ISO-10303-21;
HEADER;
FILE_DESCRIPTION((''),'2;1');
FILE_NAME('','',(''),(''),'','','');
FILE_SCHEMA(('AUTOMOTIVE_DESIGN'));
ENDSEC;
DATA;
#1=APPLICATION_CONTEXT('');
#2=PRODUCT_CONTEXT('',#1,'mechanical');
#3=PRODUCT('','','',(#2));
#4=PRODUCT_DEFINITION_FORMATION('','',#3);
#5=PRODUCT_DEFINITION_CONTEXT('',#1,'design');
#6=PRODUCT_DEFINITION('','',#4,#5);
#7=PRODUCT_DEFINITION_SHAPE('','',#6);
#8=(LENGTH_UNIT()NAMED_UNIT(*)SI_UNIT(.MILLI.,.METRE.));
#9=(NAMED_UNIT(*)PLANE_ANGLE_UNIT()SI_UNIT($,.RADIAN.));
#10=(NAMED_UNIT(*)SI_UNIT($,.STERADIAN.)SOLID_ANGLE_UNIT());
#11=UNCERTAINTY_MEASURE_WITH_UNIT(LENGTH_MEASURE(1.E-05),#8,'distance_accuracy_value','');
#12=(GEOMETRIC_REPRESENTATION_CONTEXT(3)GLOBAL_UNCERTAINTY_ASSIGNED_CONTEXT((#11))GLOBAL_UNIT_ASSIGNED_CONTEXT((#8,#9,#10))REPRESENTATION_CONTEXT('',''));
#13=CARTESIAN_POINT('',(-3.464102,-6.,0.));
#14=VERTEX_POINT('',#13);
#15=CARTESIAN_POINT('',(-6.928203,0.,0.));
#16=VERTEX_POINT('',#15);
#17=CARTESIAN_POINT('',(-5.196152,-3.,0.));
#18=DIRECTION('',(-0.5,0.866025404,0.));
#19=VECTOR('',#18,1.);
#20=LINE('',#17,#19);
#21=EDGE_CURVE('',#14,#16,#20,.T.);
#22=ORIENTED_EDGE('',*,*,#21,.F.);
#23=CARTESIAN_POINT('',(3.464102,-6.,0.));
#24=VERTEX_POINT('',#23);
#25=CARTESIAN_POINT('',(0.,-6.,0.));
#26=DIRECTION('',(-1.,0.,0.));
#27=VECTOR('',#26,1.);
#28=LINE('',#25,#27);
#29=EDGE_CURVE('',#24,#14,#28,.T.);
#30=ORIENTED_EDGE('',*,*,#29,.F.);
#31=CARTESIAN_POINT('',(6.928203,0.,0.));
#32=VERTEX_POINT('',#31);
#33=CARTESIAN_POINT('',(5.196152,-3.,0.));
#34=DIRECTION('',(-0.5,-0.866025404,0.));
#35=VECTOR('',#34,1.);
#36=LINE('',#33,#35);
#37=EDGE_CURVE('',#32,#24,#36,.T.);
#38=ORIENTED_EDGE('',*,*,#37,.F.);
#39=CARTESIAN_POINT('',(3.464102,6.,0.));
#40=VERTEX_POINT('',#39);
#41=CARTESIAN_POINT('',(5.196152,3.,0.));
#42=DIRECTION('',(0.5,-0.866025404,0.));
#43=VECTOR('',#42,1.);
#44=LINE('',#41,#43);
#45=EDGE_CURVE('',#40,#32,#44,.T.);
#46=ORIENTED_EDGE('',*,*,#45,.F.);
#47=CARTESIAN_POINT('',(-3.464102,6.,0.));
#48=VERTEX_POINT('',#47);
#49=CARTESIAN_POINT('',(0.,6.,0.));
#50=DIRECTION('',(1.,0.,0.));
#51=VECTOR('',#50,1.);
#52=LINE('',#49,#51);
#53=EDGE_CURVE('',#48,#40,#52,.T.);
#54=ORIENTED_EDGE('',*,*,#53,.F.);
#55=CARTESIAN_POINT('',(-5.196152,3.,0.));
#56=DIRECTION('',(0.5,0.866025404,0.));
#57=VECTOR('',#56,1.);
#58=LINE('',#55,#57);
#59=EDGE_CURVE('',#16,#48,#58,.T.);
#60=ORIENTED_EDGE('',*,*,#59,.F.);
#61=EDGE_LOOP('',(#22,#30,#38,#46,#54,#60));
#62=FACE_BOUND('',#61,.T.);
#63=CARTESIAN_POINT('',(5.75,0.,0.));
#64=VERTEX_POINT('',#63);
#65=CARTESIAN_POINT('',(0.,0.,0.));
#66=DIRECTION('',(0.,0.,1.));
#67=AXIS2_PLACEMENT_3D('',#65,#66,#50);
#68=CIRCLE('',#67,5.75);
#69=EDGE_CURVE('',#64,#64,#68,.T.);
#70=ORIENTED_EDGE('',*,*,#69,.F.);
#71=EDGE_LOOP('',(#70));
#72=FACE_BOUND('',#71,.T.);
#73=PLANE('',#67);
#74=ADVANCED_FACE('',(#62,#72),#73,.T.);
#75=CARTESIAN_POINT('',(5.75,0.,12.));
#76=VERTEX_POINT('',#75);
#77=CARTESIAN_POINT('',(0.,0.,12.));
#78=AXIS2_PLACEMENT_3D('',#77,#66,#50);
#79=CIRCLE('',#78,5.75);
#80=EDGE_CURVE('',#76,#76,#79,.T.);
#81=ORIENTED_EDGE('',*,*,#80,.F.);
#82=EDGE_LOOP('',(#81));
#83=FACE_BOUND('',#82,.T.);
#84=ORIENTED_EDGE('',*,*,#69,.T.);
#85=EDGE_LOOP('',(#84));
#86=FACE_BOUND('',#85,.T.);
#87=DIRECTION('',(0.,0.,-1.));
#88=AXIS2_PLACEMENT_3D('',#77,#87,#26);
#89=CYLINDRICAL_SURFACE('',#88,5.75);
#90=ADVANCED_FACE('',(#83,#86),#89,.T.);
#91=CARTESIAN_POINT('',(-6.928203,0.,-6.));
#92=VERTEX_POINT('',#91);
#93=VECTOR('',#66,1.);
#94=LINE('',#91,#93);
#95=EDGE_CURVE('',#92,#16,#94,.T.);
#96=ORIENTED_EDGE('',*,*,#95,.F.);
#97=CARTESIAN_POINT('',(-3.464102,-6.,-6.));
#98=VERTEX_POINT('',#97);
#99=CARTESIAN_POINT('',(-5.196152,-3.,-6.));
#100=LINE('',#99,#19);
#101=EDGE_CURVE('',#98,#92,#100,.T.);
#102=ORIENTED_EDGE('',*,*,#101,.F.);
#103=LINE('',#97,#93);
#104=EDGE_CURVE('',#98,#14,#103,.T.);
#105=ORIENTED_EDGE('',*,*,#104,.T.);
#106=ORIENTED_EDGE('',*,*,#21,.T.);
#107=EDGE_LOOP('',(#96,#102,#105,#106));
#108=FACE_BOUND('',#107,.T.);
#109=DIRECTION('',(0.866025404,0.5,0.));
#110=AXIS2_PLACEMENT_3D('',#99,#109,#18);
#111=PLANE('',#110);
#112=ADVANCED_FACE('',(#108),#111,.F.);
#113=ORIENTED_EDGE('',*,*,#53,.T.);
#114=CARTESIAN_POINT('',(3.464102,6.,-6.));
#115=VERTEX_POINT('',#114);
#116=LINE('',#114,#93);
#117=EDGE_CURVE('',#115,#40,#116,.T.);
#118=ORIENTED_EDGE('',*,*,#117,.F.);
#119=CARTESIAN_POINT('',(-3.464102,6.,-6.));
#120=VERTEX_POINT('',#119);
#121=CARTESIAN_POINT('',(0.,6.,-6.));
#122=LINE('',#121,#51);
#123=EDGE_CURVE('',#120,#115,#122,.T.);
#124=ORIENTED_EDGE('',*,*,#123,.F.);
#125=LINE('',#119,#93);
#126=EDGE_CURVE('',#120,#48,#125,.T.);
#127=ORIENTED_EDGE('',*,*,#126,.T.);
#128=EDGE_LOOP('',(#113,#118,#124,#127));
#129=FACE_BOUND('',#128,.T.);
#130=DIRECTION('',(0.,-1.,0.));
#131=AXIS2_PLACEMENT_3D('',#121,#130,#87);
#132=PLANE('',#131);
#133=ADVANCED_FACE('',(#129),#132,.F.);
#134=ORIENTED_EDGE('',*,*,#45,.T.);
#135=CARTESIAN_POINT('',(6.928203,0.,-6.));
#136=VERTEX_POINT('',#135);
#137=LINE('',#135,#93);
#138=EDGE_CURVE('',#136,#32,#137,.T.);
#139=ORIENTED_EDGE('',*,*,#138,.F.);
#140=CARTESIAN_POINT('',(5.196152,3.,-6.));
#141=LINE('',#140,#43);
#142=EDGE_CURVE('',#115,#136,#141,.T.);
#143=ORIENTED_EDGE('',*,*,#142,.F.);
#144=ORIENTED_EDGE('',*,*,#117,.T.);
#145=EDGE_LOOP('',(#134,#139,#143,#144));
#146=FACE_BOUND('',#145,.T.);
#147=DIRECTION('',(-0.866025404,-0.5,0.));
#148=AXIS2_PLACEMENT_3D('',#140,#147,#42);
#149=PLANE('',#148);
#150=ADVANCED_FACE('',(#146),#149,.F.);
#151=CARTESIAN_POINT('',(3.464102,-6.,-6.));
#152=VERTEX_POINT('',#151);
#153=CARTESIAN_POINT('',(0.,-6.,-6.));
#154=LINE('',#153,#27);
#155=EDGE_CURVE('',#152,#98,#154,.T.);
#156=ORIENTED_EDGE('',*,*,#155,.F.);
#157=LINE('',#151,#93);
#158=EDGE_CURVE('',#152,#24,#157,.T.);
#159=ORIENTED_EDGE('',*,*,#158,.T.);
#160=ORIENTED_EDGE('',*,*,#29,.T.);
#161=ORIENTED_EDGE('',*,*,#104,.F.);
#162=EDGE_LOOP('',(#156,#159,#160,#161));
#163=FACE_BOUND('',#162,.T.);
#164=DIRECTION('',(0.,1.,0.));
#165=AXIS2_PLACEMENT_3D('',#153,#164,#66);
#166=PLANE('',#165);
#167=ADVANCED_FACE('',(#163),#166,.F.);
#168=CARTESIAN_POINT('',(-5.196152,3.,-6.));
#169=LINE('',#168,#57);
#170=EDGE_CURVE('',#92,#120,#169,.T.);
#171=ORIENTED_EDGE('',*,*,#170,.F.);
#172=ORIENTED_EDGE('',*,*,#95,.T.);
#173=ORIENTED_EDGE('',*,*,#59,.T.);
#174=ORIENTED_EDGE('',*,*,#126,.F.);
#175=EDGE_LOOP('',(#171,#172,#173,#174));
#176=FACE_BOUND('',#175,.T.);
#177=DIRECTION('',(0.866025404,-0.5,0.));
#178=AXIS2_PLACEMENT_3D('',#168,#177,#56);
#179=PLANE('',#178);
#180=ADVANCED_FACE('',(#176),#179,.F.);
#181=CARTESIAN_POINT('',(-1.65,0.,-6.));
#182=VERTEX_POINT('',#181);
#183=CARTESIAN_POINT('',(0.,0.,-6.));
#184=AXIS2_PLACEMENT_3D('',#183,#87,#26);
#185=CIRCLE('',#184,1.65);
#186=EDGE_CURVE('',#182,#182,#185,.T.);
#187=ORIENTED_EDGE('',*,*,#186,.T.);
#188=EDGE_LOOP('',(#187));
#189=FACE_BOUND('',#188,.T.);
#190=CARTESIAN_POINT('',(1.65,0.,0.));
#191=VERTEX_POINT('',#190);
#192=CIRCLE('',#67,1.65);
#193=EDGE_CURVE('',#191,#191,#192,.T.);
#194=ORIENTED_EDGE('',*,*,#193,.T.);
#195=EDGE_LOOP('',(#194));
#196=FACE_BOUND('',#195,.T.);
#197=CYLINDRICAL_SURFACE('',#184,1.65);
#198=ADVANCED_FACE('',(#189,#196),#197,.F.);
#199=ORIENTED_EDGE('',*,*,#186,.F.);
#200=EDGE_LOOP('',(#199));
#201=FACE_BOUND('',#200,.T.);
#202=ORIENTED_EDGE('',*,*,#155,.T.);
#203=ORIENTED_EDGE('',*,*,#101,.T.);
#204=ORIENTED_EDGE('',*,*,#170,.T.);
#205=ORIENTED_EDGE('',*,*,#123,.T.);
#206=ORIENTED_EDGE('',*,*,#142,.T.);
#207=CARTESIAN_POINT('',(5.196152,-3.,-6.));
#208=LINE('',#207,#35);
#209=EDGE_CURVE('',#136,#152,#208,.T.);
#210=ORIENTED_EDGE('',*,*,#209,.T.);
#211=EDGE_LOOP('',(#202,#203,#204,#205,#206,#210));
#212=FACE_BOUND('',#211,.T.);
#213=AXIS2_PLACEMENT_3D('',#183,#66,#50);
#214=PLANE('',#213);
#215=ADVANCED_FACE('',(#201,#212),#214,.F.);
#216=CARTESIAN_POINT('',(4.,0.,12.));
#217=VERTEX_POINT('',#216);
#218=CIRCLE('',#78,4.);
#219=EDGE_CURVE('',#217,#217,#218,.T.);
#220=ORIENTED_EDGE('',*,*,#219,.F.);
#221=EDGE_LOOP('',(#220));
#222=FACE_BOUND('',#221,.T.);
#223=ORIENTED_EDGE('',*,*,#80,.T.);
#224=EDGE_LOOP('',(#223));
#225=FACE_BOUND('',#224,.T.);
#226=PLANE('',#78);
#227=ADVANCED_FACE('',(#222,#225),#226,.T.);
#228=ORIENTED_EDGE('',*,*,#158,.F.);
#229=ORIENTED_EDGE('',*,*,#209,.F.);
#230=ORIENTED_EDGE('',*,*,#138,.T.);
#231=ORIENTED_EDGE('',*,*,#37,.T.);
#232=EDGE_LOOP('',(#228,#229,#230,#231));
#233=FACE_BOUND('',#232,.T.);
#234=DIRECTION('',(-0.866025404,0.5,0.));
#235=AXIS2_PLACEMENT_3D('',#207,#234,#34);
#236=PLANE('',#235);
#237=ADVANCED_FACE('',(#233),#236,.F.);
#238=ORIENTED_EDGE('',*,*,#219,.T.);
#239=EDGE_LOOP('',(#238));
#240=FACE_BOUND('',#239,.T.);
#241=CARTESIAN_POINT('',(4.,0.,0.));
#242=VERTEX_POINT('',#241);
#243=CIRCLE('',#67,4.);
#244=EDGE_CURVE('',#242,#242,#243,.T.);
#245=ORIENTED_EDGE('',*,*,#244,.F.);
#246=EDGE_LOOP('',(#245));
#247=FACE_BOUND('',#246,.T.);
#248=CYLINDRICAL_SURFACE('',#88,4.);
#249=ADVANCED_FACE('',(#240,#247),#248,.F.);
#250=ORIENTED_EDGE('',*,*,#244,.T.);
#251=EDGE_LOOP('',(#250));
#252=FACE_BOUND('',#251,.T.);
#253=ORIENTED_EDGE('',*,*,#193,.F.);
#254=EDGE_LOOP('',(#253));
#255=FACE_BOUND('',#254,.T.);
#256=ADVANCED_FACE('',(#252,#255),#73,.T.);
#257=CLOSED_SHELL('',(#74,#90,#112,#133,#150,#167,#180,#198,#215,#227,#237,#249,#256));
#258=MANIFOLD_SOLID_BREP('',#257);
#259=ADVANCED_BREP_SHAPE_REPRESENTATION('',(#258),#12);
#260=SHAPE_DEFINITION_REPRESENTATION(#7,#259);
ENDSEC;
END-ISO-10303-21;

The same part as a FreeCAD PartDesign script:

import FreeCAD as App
import Part
import Sketcher
Q = App.Units.Quantity


def add_polygon(sketch, points):
    """Adds a closed chain of lines whose ends are joined by coincident constraints."""
    first, n = sketch.GeometryCount, len(points)
    for a, b in zip(points, points[1:] + points[:1]):
        sketch.addGeometry(Part.LineSegment(App.Vector(*a, 0), App.Vector(*b, 0)), False)
    for i in range(n):
        sketch.addConstraint(Sketcher.Constraint("Coincident", first + i, 2, first + (i + 1) % n, 1))

doc = App.newDocument("Part")
body = doc.addObject("PartDesign::Body", "Body")

# Sketch on XY plane
sketch1 = body.newObject("Sketcher::SketchObject", "Sketch")
sketch1.AttachmentSupport = (doc.getObject("XY_Plane"), [""])
sketch1.MapMode = "FlatFace"
sketch1.addGeometry(Part.Circle(App.Vector(0, 0, 0), App.Vector(0, 0, 1), 5.8), False)
sketch1.addGeometry(Part.Circle(App.Vector(0, 0, 0), App.Vector(0, 0, 1), 4), False)
sketch1.addConstraint(Sketcher.Constraint("Coincident", 0, 3, -1, 1))
sketch1.addConstraint(Sketcher.Constraint("Coincident", 1, 3, -1, 1))
sketch1.addConstraint(Sketcher.Constraint("Diameter", 1, Q("8 mm")))
sketch1.addConstraint(Sketcher.Constraint("Diameter", 0, Q("11.5 mm")))
pad1 = body.newObject("PartDesign::Pad", "Pad")
pad1.Profile = sketch1
pad1.Length = 12

# Sketch on XY plane
sketch2 = body.newObject("Sketcher::SketchObject", "Sketch001")
sketch2.AttachmentSupport = (doc.getObject("XY_Plane"), [""])
sketch2.MapMode = "FlatFace"
add_polygon(sketch2, [(-3, 6), (-7, 0), (-3, -6), (3, -6), (7, 0), (3, 6)])  # lines 0-5
sketch2.addConstraint(Sketcher.Constraint("Horizontal", 2))
sketch2.addConstraint(Sketcher.Constraint("Horizontal", 5))
sketch2.addConstraint(Sketcher.Constraint("Symmetric", 0, 2, 3, 2, -1, 1))
sketch2.addConstraint(Sketcher.Constraint("Symmetric", 1, 2, 4, 2, -1, 1))
sketch2.addConstraint(Sketcher.Constraint("PointOnObject", 0, 2, -1))
sketch2.addConstraint(Sketcher.Constraint("Parallel", 0, 3))
sketch2.addConstraint(Sketcher.Constraint("Vertical", 2, 2, 4, 2))
sketch2.addConstraint(Sketcher.Constraint("Angle", 0, Q("-120 deg")))
sketch2.addConstraint(Sketcher.Constraint("DistanceY", 1, 2, -1, 1, Q("6 mm")))
sketch2.addConstraint(Sketcher.Constraint("DistanceX", 1, 2, -1, 1, Q("3.464102 mm")))
pad2 = body.newObject("PartDesign::Pad", "Pad001")
pad2.Profile = sketch2
pad2.Length = 6
pad2.Reversed = True

# Sketch on XY plane
sketch3 = body.newObject("Sketcher::SketchObject", "Sketch002")
sketch3.AttachmentSupport = (doc.getObject("XY_Plane"), [""])
sketch3.MapMode = "FlatFace"
sketch3.AttachmentOffset = App.Placement(App.Vector(0, 0, -6), App.Rotation())
sketch3.addGeometry(Part.Circle(App.Vector(0, 0, 0), App.Vector(0, 0, 1), 1.6), False)
sketch3.addConstraint(Sketcher.Constraint("Coincident", 0, 3, -1, 1))
sketch3.addConstraint(Sketcher.Constraint("Diameter", 0, Q("3.3 mm")))
doc.recompute()
hole = body.newObject("PartDesign::Hole", "Hole")
hole.Profile = sketch3
hole.ThreadType = "None"
hole.Diameter = 3.3
hole.DepthType = "ThroughAll"
hole.Reversed = True

doc.recompute()
